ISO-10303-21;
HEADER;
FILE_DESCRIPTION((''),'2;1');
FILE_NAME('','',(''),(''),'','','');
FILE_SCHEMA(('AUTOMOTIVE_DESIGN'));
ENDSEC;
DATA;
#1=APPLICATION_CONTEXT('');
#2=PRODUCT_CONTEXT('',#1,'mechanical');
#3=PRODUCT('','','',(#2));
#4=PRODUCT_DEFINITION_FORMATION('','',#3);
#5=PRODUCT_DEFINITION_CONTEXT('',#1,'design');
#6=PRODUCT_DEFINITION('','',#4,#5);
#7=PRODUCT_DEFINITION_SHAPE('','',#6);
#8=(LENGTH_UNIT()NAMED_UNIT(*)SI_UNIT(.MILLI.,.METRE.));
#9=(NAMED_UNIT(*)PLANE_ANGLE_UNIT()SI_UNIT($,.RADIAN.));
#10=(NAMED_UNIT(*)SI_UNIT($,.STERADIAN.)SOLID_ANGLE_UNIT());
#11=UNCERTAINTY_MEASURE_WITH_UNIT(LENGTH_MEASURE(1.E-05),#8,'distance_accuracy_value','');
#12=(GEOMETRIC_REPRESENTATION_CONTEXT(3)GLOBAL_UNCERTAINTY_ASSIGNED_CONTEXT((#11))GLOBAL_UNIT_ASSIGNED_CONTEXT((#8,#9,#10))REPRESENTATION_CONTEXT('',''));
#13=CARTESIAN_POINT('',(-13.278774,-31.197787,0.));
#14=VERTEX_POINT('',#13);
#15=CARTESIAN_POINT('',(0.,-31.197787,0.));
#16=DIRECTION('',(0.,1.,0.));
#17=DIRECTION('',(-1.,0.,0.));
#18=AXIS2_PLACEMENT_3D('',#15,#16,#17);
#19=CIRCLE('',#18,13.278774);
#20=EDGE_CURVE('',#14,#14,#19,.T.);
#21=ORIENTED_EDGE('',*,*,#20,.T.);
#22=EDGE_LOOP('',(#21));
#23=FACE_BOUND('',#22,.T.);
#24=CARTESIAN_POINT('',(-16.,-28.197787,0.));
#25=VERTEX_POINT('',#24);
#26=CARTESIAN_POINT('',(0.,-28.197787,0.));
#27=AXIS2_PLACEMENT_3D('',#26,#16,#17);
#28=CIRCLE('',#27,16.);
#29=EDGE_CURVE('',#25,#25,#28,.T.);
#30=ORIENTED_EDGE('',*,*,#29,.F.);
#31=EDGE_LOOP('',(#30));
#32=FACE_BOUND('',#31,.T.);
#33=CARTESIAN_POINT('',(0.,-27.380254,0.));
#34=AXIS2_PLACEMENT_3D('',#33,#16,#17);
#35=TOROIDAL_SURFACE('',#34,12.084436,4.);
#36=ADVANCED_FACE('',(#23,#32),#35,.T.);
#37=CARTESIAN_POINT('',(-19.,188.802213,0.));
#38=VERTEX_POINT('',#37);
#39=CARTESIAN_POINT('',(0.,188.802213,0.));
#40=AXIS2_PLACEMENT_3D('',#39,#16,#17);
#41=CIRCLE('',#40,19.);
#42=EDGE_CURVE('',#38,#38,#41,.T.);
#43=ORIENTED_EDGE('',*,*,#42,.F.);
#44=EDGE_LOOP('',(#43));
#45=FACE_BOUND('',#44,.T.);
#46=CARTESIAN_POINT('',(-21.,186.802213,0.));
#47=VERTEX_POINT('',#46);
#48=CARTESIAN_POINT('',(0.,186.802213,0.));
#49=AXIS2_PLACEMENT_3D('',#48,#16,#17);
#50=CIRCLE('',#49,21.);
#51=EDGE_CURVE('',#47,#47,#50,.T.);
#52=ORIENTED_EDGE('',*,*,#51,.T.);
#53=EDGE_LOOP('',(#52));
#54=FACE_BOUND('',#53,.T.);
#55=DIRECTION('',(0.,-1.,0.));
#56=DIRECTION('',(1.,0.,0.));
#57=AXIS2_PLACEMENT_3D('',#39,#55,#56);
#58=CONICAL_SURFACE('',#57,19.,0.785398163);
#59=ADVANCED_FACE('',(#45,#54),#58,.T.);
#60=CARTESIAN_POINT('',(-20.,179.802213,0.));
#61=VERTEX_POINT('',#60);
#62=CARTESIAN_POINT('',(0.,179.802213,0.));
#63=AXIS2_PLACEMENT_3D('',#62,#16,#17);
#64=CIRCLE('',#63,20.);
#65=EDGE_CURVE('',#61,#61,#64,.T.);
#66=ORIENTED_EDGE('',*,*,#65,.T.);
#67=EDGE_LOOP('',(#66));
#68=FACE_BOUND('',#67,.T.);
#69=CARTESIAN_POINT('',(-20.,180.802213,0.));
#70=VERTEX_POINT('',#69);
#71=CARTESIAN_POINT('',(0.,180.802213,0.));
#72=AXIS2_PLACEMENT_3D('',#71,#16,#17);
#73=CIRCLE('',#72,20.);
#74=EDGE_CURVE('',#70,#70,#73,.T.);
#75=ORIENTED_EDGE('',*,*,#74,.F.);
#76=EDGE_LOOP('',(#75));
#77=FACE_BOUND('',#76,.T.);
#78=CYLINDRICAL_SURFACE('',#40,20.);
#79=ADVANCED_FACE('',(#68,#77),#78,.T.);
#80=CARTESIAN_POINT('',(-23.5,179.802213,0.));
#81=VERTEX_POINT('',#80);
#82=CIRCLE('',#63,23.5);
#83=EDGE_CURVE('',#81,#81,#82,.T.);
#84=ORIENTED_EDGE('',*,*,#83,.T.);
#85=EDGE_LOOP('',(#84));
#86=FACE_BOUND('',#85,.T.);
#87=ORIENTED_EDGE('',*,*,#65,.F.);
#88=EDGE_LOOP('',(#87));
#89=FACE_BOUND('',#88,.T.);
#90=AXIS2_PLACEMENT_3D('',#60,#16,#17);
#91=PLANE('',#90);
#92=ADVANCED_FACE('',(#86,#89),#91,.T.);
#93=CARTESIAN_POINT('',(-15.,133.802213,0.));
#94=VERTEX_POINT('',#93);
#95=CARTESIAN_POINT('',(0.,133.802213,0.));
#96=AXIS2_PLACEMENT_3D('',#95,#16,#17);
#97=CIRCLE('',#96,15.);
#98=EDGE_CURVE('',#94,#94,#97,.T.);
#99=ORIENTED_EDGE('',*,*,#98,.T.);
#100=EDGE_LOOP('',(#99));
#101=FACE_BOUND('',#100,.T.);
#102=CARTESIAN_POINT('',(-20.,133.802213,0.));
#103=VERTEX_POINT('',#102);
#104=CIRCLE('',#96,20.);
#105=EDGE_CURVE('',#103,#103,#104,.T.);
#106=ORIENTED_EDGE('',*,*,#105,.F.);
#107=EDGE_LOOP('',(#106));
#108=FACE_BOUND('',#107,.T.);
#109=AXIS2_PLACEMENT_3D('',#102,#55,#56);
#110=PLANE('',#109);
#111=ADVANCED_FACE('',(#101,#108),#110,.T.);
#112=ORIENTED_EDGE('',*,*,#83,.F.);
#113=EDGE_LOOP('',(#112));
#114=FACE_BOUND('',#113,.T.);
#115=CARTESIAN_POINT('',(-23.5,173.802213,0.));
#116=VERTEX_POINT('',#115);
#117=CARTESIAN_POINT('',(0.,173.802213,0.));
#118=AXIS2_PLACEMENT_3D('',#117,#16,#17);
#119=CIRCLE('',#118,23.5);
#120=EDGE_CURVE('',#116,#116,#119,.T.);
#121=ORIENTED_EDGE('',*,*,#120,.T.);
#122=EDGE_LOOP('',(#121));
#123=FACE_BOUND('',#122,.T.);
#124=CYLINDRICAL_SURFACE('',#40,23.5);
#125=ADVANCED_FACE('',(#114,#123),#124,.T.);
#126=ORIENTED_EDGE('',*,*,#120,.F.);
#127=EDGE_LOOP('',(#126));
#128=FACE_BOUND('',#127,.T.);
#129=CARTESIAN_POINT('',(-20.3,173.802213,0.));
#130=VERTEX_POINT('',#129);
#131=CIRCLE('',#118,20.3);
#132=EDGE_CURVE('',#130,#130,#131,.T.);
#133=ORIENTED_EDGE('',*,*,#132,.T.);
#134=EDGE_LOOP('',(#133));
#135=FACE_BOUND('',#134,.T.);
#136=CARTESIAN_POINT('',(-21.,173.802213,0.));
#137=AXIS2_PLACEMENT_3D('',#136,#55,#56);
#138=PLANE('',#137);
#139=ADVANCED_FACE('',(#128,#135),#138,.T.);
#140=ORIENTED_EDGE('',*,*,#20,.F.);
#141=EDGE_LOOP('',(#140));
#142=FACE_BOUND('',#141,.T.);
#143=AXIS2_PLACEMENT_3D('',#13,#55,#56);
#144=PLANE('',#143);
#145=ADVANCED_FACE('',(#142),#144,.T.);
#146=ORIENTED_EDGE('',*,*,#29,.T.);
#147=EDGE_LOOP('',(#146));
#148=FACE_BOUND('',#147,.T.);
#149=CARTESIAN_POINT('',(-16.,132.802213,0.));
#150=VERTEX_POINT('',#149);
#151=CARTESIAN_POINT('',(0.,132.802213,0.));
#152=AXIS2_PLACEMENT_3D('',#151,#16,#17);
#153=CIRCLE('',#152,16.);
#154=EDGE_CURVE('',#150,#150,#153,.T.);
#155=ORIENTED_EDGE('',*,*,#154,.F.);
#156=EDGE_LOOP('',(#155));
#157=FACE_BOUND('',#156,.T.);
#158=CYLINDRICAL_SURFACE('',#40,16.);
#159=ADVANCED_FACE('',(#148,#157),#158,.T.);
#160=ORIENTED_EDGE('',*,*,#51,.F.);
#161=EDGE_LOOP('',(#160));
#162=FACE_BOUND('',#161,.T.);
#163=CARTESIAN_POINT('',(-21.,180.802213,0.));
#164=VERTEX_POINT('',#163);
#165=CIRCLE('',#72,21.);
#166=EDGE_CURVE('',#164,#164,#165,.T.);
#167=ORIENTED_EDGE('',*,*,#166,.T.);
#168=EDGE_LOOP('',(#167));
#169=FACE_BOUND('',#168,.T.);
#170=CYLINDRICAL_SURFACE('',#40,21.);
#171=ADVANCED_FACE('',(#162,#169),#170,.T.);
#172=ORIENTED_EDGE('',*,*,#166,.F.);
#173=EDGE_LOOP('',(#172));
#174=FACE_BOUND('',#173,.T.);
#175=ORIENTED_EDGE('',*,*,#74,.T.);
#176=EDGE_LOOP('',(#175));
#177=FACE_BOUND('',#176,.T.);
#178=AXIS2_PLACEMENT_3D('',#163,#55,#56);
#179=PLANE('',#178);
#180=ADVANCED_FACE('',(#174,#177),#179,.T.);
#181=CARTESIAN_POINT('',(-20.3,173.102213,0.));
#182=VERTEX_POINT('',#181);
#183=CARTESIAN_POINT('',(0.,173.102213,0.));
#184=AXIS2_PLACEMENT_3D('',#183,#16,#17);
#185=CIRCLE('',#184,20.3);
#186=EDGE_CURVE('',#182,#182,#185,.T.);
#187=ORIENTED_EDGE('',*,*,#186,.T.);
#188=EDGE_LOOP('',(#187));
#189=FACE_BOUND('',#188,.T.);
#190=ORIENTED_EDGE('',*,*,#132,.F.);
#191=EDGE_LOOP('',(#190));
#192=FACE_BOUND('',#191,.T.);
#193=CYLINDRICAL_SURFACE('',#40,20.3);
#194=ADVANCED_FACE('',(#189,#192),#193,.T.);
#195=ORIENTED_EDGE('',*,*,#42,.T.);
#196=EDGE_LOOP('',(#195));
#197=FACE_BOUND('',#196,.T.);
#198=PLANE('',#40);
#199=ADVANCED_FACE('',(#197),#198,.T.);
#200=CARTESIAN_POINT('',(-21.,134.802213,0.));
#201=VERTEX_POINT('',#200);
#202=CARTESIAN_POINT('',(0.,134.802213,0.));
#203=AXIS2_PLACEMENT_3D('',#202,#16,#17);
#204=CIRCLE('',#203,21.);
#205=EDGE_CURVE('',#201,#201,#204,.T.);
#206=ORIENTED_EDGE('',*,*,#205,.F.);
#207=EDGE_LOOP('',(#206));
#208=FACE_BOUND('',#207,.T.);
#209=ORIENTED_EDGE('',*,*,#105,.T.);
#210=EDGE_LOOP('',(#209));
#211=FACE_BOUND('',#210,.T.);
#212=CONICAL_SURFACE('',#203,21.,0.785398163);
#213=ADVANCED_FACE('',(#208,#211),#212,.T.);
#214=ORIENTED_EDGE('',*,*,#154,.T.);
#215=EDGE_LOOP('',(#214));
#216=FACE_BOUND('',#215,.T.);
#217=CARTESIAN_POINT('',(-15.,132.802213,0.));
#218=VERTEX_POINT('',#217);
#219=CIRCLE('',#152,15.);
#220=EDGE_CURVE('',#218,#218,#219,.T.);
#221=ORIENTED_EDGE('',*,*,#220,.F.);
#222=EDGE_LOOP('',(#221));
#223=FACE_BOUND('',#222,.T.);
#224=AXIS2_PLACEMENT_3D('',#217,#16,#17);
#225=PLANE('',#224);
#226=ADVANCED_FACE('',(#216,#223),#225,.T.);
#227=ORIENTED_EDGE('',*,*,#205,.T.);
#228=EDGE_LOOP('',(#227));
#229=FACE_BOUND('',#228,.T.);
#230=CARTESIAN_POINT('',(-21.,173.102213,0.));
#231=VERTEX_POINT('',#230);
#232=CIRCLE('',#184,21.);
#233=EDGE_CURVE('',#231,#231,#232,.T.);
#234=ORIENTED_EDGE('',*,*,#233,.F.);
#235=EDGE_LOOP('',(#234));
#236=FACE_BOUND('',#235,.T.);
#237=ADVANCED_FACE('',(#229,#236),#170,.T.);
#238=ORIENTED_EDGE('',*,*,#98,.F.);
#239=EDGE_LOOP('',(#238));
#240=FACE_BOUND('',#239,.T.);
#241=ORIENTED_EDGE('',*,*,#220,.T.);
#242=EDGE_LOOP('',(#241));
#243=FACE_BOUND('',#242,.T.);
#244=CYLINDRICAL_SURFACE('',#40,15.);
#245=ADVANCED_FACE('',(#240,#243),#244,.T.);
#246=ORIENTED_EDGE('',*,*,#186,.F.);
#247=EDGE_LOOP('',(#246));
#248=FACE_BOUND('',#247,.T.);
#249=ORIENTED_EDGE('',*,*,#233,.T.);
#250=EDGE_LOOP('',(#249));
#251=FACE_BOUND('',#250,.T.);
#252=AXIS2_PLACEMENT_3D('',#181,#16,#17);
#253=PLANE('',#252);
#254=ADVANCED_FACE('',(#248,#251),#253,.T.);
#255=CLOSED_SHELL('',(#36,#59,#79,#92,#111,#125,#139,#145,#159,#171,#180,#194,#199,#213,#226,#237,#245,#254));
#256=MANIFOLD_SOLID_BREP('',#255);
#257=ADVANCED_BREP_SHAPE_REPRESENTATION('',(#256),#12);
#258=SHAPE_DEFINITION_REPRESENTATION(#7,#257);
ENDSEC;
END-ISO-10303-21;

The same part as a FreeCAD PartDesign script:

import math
import FreeCAD as App
import Part
import Sketcher

V = App.Vector
Q = App.Units.Quantity

doc = App.newDocument("Part")
body = doc.addObject("PartDesign::Body", "Body")

sketch1 = body.newObject("Sketcher::SketchObject", "Sketch")
sketch1.AttachmentSupport = (doc.getObject("XY_Plane"), [""])
sketch1.MapMode = "FlatFace"
sketch1.addGeometry(Part.LineSegment(V(0, 188.802213, 0), V(-19, 188.802213, 0)), False)
sketch1.addGeometry(Part.LineSegment(V(-19, 188.802213, 0), V(-21, 186.802213, 0)), False)
sketch1.addGeometry(Part.LineSegment(V(-21, 186.802213, 0), V(-21, 180.802213, 0)), False)
sketch1.addGeometry(Part.LineSegment(V(-21, 180.802213, 0), V(-20, 180.802213, 0)), False)
sketch1.addGeometry(Part.LineSegment(V(-20, 180.802213, 0), V(-20, 179.802213, 0)), False)
sketch1.addGeometry(Part.LineSegment(V(-20, 179.802213, 0), V(-23.5, 179.802213, 0)), False)
sketch1.addGeometry(Part.LineSegment(V(-23.5, 179.802213, 0), V(-23.5, 173.802213, 0)), False)
sketch1.addGeometry(Part.LineSegment(V(-23.5, 173.802213, 0), V(-20.3, 173.802213, 0)), False)
sketch1.addGeometry(Part.LineSegment(V(-20.3, 173.802213, 0), V(-20.3, 173.102213, 0)), False)
sketch1.addGeometry(Part.LineSegment(V(-20.3, 173.102213, 0), V(-21, 173.102213, 0)), False)
sketch1.addGeometry(Part.LineSegment(V(-21, 173.102213, 0), V(-21, 134.802213, 0)), False)
sketch1.addGeometry(Part.LineSegment(V(-21, 134.802213, 0), V(-20, 133.802213, 0)), False)
sketch1.addGeometry(Part.LineSegment(V(-20, 133.802213, 0), V(-15, 133.802213, 0)), False)
sketch1.addGeometry(Part.LineSegment(V(-15, 133.802213, 0), V(-15, 132.802213, 0)), False)
sketch1.addGeometry(Part.LineSegment(V(-15, 132.802213, 0), V(-16, 132.802213, 0)), False)
sketch1.addGeometry(Part.LineSegment(V(-16, 132.802213, 0), V(-16, -28.197787, 0)), False)
sketch1.addGeometry(Part.ArcOfCircle(Part.Circle(V(-12.084436, -27.380254, 0), V(0, 0, 1), 4), math.radians(-168.206605), math.radians(-107.372605)), False)
sketch1.addGeometry(Part.LineSegment(V(-13.278774, -31.197787, 0), V(0, -31.197787, 0)), False)
sketch1.addGeometry(Part.LineSegment(V(0, -31.197787, 0), V(0, 188.802213, 0)), False)
sketch1.addConstraint(Sketcher.Constraint("Coincident", 0, 2, 1, 1))
sketch1.addConstraint(Sketcher.Constraint("Coincident", 1, 2, 2, 1))
sketch1.addConstraint(Sketcher.Constraint("Coincident", 2, 2, 3, 1))
sketch1.addConstraint(Sketcher.Constraint("Coincident", 3, 2, 4, 1))
sketch1.addConstraint(Sketcher.Constraint("Coincident", 4, 2, 5, 1))
sketch1.addConstraint(Sketcher.Constraint("Coincident", 5, 2, 6, 1))
sketch1.addConstraint(Sketcher.Constraint("Coincident", 6, 2, 7, 1))
sketch1.addConstraint(Sketcher.Constraint("Coincident", 7, 2, 8, 1))
sketch1.addConstraint(Sketcher.Constraint("Coincident", 8, 2, 9, 1))
sketch1.addConstraint(Sketcher.Constraint("Coincident", 9, 2, 10, 1))
sketch1.addConstraint(Sketcher.Constraint("Coincident", 10, 2, 11, 1))
sketch1.addConstraint(Sketcher.Constraint("Coincident", 11, 2, 12, 1))
sketch1.addConstraint(Sketcher.Constraint("Coincident", 12, 2, 13, 1))
sketch1.addConstraint(Sketcher.Constraint("Coincident", 13, 2, 14, 1))
sketch1.addConstraint(Sketcher.Constraint("Coincident", 14, 2, 15, 1))
sketch1.addConstraint(Sketcher.Constraint("Coincident", 15, 2, 16, 1))
sketch1.addConstraint(Sketcher.Constraint("Coincident", 16, 2, 17, 1))
sketch1.addConstraint(Sketcher.Constraint("Coincident", 17, 2, 18, 1))
sketch1.addConstraint(Sketcher.Constraint("Coincident", 18, 2, 0, 1))
sketch1.addConstraint(Sketcher.Constraint("Horizontal", 0))
sketch1.addConstraint(Sketcher.Constraint("Vertical", 2))
sketch1.addConstraint(Sketcher.Constraint("Horizontal", 3))
sketch1.addConstraint(Sketcher.Constraint("Vertical", 4))
sketch1.addConstraint(Sketcher.Constraint("Horizontal", 5))
sketch1.addConstraint(Sketcher.Constraint("Vertical", 6))
sketch1.addConstraint(Sketcher.Constraint("Horizontal", 7))
sketch1.addConstraint(Sketcher.Constraint("Vertical", 8))
sketch1.addConstraint(Sketcher.Constraint("Horizontal", 9))
sketch1.addConstraint(Sketcher.Constraint("Vertical", 10))
sketch1.addConstraint(Sketcher.Constraint("Horizontal", 12))
sketch1.addConstraint(Sketcher.Constraint("Vertical", 13))
sketch1.addConstraint(Sketcher.Constraint("Horizontal", 14))
sketch1.addConstraint(Sketcher.Constraint("Vertical", 15))
sketch1.addConstraint(Sketcher.Constraint("Horizontal", 17))
sketch1.addConstraint(Sketcher.Constraint("Vertical", 18))
sketch1.addConstraint(Sketcher.Constraint("PointOnObject", 17, 2, -2))
sketch1.addConstraint(Sketcher.Constraint("Perpendicular", 1, 11))
sketch1.addConstraint(Sketcher.Constraint("Vertical", 2, 2, 9, 2))
sketch1.addConstraint(Sketcher.Constraint("Vertical", 4, 2, 11, 2))
sketch1.addConstraint(Sketcher.Constraint("Equal", 3, 14))
sketch1.addConstraint(Sketcher.Constraint("Equal", 14, 4))
sketch1.addConstraint(Sketcher.Constraint("Equal", 2, 6))
sketch1.addConstraint(Sketcher.Constraint("Equal", 9, 8))
sketch1.addConstraint(Sketcher.Constraint("Equal", 4, 13))
sketch1.addConstraint(Sketcher.Constraint("Radius", 16, Q("4 mm")))
sketch1.addConstraint(Sketcher.Constraint("DistanceX", 0, 2, 0, 1, Q("19 mm")))
sketch1.addConstraint(Sketcher.Constraint("DistanceX", 3, 1, 3, 2, Q("1 mm")))
sketch1.addConstraint(Sketcher.Constraint("DistanceX", 12, 1, 12, 2, Q("5 mm")))
sketch1.addConstraint(Sketcher.Constraint("DistanceY", 2, 2, 2, 1, Q("6 mm")))
sketch1.addConstraint(Sketcher.Constraint("DistanceY", 15, 2, 15, 1, Q("161 mm")))
sketch1.addConstraint(Sketcher.Constraint("DistanceY", 18, 1, 18, 2, Q("220 mm")))
sketch1.addConstraint(Sketcher.Constraint("Angle", 1, Q("-135 deg")))
sketch1.addConstraint(Sketcher.Constraint("DistanceX", 5, 2, 5, 1, Q("3.5 mm")))
sketch1.addConstraint(Sketcher.Constraint("DistanceX", 7, 1, 7, 2, Q("3.2 mm")))
sketch1.addConstraint(Sketcher.Constraint("DistanceY", 10, 2, 10, 1, Q("38.3 mm")))
sketch1.addConstraint(Sketcher.Constraint("DistanceX", 1, 2, -1, 1, Q("21 mm")))
sketch1.addConstraint(Sketcher.Constraint("DistanceX", 17, 1, 17, 2, Q("13.278774 mm")))
sketch1.addConstraint(Sketcher.Constraint("DistanceY", 16, 3, -1, 1, Q("27.380254 mm")))
revolution = body.newObject("PartDesign::Revolution", "Revolution")
revolution.Profile = sketch1
revolution.ReferenceAxis = (sketch1, ["V_Axis"])
revolution.Angle = 360

doc.recompute()
